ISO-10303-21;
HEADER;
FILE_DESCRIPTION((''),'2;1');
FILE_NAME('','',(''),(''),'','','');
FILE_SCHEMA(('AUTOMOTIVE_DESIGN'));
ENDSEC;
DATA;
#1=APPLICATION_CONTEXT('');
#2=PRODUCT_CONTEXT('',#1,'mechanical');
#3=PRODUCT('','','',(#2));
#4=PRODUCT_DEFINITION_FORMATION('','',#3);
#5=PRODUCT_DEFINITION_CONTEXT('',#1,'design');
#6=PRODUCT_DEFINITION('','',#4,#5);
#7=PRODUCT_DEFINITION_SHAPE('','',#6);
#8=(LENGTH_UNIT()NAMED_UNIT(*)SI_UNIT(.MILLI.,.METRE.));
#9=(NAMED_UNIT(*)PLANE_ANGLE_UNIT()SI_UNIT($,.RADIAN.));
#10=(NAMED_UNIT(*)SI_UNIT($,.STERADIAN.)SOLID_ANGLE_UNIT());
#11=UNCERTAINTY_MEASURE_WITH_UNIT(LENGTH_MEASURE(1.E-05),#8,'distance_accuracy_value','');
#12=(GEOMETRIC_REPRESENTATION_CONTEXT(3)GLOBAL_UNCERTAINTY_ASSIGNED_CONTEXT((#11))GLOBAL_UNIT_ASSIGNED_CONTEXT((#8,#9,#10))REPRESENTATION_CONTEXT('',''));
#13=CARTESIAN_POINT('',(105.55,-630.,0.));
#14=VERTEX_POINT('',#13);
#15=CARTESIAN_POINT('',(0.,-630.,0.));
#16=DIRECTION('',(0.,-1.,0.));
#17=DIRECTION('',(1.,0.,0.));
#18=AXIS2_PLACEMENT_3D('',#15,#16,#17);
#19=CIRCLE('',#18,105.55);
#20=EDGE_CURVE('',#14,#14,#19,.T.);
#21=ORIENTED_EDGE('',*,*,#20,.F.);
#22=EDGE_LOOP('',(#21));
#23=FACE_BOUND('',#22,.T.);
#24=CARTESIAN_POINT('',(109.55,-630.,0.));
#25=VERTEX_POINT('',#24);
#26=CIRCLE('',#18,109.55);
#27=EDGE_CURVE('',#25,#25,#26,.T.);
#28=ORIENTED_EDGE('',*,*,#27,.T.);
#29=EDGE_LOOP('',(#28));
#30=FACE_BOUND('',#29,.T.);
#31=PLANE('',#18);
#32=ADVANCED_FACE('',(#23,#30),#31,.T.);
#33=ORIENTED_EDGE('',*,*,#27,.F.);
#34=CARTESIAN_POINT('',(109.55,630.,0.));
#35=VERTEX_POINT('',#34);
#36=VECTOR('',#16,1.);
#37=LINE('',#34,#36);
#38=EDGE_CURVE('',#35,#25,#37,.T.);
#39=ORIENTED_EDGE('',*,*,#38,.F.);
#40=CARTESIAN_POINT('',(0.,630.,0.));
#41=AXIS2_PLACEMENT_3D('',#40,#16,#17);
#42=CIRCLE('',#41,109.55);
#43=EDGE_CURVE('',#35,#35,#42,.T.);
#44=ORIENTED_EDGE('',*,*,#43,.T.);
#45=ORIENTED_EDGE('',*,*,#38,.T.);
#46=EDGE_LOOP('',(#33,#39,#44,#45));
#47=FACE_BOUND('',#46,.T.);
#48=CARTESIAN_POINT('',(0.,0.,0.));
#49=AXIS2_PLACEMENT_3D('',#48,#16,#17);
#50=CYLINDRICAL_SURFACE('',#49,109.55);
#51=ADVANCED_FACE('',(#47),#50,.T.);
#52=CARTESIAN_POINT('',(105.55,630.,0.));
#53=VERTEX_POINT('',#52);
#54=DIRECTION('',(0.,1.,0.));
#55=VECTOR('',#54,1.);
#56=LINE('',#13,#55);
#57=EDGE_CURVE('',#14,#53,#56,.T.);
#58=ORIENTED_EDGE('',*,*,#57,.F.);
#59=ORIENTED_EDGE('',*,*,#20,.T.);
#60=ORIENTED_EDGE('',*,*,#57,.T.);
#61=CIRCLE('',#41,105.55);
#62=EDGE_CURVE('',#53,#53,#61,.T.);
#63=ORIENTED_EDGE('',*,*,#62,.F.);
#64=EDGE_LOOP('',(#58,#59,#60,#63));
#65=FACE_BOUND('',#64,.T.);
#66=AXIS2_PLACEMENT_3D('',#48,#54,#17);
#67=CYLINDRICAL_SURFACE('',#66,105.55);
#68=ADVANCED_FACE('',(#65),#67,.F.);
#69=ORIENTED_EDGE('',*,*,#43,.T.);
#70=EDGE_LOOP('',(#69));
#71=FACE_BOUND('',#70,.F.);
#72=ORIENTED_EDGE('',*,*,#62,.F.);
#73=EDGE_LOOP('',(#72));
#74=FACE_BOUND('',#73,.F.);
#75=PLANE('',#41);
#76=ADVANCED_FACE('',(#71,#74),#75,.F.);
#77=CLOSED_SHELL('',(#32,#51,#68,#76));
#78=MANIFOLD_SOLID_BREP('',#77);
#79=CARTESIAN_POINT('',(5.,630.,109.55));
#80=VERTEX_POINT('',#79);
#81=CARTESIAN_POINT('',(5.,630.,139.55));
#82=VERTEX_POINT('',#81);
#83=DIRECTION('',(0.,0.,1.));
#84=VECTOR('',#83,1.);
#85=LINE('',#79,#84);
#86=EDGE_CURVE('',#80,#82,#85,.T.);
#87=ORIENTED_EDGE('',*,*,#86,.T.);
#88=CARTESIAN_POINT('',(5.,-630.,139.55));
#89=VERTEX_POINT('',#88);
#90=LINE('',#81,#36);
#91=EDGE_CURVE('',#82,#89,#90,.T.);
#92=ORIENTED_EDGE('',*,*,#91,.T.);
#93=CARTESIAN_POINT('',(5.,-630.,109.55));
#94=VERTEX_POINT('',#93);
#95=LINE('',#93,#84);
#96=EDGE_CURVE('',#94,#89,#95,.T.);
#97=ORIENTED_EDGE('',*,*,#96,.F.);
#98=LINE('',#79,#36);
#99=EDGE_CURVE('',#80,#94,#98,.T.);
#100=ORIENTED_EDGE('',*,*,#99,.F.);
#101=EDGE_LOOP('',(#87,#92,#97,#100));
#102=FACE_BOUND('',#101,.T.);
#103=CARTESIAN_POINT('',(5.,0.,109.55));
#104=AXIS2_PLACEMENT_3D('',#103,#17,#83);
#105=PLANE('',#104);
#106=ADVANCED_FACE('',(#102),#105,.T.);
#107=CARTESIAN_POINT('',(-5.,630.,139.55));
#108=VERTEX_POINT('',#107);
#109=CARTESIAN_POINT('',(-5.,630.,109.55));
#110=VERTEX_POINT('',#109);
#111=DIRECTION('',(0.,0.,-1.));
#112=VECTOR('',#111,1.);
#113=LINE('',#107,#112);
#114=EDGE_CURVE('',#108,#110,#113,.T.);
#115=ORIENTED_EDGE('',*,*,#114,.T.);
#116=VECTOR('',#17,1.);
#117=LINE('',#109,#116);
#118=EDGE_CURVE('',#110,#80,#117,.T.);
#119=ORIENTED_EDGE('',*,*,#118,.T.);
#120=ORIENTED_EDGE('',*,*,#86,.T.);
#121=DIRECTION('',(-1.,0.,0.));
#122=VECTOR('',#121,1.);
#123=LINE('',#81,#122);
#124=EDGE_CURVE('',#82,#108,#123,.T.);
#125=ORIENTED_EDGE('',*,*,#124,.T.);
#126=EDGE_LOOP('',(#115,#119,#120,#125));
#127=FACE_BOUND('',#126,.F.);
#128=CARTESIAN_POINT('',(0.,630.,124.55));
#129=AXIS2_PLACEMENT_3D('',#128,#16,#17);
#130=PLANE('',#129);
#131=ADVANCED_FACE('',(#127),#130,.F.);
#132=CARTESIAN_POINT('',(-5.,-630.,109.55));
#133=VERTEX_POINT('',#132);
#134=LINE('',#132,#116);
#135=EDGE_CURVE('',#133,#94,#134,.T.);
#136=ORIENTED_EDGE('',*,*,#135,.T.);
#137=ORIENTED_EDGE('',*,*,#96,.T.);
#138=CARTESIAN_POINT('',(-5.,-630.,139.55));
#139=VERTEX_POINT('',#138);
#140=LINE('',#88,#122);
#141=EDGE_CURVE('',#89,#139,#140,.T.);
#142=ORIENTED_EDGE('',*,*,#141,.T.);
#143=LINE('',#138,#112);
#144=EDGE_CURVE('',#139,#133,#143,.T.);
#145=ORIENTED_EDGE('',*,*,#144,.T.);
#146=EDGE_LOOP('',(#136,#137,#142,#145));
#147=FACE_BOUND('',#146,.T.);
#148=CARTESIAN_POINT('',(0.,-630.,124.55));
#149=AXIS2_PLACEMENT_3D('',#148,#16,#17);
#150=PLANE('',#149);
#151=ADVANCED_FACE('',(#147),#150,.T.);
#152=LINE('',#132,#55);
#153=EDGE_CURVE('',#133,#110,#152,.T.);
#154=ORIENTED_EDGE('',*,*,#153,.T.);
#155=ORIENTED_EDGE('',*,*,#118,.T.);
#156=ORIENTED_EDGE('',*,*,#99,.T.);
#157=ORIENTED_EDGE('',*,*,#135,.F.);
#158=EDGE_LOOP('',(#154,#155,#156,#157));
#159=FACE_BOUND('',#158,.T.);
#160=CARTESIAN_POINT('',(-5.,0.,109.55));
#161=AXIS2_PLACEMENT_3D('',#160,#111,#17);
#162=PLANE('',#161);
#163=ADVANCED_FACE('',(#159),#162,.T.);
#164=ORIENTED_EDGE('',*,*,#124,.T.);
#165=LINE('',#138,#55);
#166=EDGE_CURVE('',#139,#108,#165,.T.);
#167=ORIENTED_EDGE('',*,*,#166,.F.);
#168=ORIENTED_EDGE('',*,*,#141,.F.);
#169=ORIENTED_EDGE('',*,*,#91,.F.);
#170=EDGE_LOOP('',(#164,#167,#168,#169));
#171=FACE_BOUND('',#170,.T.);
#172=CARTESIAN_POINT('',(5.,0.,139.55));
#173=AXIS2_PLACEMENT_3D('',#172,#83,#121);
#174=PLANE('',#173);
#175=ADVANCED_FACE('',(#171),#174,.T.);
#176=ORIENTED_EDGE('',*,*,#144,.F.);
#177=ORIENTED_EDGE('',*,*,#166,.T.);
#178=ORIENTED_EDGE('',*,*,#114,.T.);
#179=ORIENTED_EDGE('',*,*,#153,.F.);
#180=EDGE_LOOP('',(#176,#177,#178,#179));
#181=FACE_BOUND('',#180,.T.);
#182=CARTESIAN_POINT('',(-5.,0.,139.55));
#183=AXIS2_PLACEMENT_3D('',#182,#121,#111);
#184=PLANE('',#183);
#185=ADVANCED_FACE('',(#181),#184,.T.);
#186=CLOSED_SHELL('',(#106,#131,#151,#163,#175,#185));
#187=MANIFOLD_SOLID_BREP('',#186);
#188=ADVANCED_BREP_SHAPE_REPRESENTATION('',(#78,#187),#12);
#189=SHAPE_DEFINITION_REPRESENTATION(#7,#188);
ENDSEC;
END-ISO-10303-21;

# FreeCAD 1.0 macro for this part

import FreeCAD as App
import Part
import Sketcher


def add_polygon(sketch, points):
    """Adds a closed chain of lines whose ends are joined by coincident constraints."""
    first, n = sketch.GeometryCount, len(points)
    for a, b in zip(points, points[1:] + points[:1]):
        sketch.addGeometry(Part.LineSegment(App.Vector(*a, 0), App.Vector(*b, 0)), False)
    for i in range(n):
        sketch.addConstraint(Sketcher.Constraint("Coincident", first + i, 2, first + (i + 1) % n, 1))

doc = App.newDocument("Part")
body = doc.addObject("PartDesign::Body", "Body")

sketch1 = doc.addObject("Sketcher::SketchObject", "Sketch")
body.addObject(sketch1)
sketch1.AttachmentSupport = (doc.XZ_Plane, [""])
sketch1.MapMode = "FlatFace"
sketch1.addGeometry([
    Part.Circle(App.Vector(0, 0, 0), App.Vector(0, 0, 1), 110),
    Part.Circle(App.Vector(0, 0, 0), App.Vector(0, 0, 1), 106),
], False)
sketch1.addConstraint([
    Sketcher.Constraint("Coincident", 0, 3, -1, 1),
    Sketcher.Constraint("Coincident", 1, 3, -1, 1),
    Sketcher.Constraint("Diameter", 0, 219.1),
    Sketcher.Constraint("Diameter", 1, 211.1),
])
pad1 = doc.addObject("PartDesign::Pad", "Pad")
body.addObject(pad1)
pad1.Profile = sketch1
pad1.Length = 1260
pad1.Midplane = True
body2 = doc.addObject("PartDesign::Body", "Body001")

sketch2 = doc.addObject("Sketcher::SketchObject", "Sketch001")
body2.addObject(sketch2)
sketch2.AttachmentSupport = (doc.getObject("XZ_Plane001"), [""])
sketch2.MapMode = "FlatFace"
add_polygon(sketch2, [(-5, 110), (5, 110), (5, 140), (-5, 140)])
sketch2.addConstraint([
    Sketcher.Constraint("Horizontal", 0),
    Sketcher.Constraint("Vertical", 1),
    Sketcher.Constraint("Horizontal", 2),
    Sketcher.Constraint("Vertical", 3),
    Sketcher.Constraint("DistanceX", 0, 1, 0, 2, 10.0),
    Sketcher.Constraint("DistanceY", 1, 1, 1, 2, 30.0),
    Sketcher.Constraint("DistanceX", -1, 1, 0, 2, 5.0),
    Sketcher.Constraint("DistanceY", -1, 1, 0, 2, 109.55),
])
pad2 = doc.addObject("PartDesign::Pad", "Pad001")
body2.addObject(pad2)
pad2.Profile = sketch2
pad2.Type = "TwoLengths"
pad2.Length = 630
pad2.Length2 = 630

doc.recompute()
